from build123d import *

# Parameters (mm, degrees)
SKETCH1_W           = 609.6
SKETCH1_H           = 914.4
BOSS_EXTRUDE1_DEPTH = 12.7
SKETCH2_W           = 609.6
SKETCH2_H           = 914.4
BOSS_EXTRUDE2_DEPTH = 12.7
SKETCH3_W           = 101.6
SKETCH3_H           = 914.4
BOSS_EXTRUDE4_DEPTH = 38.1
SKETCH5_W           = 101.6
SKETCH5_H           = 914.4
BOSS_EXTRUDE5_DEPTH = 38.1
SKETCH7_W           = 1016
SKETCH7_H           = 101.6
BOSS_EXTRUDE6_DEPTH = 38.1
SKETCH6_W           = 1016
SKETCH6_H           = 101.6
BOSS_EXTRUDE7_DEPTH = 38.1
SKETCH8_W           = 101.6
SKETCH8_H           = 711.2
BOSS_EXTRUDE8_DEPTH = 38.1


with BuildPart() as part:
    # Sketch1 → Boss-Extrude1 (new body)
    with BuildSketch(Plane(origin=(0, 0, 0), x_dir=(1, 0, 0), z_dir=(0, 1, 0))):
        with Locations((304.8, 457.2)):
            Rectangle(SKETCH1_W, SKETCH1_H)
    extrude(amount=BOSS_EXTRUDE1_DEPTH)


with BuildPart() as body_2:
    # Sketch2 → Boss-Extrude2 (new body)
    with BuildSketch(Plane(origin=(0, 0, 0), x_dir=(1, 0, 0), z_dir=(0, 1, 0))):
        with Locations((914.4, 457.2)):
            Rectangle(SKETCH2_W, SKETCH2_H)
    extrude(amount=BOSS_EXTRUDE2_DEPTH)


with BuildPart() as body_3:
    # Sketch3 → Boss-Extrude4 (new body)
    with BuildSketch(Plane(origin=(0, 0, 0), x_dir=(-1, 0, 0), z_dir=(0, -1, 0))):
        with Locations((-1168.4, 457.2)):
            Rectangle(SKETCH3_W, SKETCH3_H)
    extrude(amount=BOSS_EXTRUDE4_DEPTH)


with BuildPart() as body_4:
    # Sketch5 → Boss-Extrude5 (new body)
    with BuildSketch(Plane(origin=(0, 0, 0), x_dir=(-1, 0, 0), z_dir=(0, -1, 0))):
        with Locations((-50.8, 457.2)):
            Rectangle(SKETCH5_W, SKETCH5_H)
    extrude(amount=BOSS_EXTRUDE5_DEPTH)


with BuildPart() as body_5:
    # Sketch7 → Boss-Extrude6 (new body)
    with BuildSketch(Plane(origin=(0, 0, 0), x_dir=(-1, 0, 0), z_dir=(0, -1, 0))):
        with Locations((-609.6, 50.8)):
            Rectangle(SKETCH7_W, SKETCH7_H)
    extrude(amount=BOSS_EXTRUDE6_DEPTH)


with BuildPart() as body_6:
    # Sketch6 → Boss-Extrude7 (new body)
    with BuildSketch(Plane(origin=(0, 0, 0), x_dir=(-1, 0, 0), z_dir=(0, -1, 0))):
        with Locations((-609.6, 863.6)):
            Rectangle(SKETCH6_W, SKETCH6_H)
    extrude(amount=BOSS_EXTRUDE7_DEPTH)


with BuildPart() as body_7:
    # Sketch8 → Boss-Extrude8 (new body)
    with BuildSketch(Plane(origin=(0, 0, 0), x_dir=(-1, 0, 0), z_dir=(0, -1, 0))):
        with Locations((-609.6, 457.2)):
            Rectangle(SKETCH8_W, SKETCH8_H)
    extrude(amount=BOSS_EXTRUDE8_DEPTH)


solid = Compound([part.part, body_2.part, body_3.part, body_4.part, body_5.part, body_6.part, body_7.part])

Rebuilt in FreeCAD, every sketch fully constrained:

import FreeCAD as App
import Part
import Sketcher
from FreeCAD import Vector
Q = App.Units.Quantity

doc = App.newDocument("Part")
body = doc.addObject("PartDesign::Body", "Body")

# Sketch on XZ plane
sketch1 = body.newObject("Sketcher::SketchObject", "Sketch")
sketch1.AttachmentSupport = (doc.getObject("XZ_Plane"), [""])
sketch1.MapMode = "FlatFace"
sketch1.addGeometry([
    Part.LineSegment(Vector(0, -914.4, 0), Vector(0, 0, 0)),
    Part.LineSegment(Vector(0, 0, 0), Vector(609.6, 0, 0)),
    Part.LineSegment(Vector(609.6, 0, 0), Vector(609.6, -914.4, 0)),
    Part.LineSegment(Vector(609.6, -914.4, 0), Vector(0, -914.4, 0)),
], False)
sketch1.addConstraint([
    Sketcher.Constraint("Coincident", 0, 2, 1, 1),
    Sketcher.Constraint("Coincident", 1, 2, 2, 1),
    Sketcher.Constraint("Coincident", 2, 2, 3, 1),
    Sketcher.Constraint("Coincident", 3, 2, 0, 1),
    Sketcher.Constraint("Vertical", 0),
    Sketcher.Constraint("Horizontal", 1),
    Sketcher.Constraint("Vertical", 2),
    Sketcher.Constraint("Horizontal", 3),
    Sketcher.Constraint("Coincident", 0, 2, -1, 1),
    Sketcher.Constraint("DistanceX", 1, 1, 1, 2, Q("24 in")),
    Sketcher.Constraint("DistanceY", 0, 1, 0, 2, Q("36 in")),
])
pad1 = body.newObject("PartDesign::Pad", "Pad")
pad1.Profile = sketch1
pad1.Length = Q("0.5 in")
pad1.Reversed = True
body2 = doc.addObject("PartDesign::Body", "Body001")

# Sketch on XZ plane
sketch2 = body2.newObject("Sketcher::SketchObject", "Sketch001")
sketch2.AttachmentSupport = (doc.getObject("XZ_Plane001"), [""])
sketch2.MapMode = "FlatFace"
sketch2.addGeometry([
    Part.LineSegment(Vector(609.6, -914.4, 0), Vector(609.6, 0, 0)),
    Part.LineSegment(Vector(609.6, 0, 0), Vector(1219.2, 0, 0)),
    Part.LineSegment(Vector(1219.2, 0, 0), Vector(1219.2, -914.4, 0)),
    Part.LineSegment(Vector(1219.2, -914.4, 0), Vector(609.6, -914.4, 0)),
], False)
sketch2.addConstraint([
    Sketcher.Constraint("Coincident", 0, 2, 1, 1),
    Sketcher.Constraint("Coincident", 1, 2, 2, 1),
    Sketcher.Constraint("Coincident", 2, 2, 3, 1),
    Sketcher.Constraint("Coincident", 3, 2, 0, 1),
    Sketcher.Constraint("Vertical", 0),
    Sketcher.Constraint("Horizontal", 1),
    Sketcher.Constraint("Vertical", 2),
    Sketcher.Constraint("Horizontal", 3),
    Sketcher.Constraint("PointOnObject", 0, 2, -1),
    Sketcher.Constraint("DistanceX", 1, 1, 1, 2, Q("24 in")),
    Sketcher.Constraint("DistanceY", 0, 1, 0, 2, Q("36 in")),
    Sketcher.Constraint("DistanceX", -1, 1, 0, 2, Q("24 in")),
])
pad2 = body2.newObject("PartDesign::Pad", "Pad001")
pad2.Profile = sketch2
pad2.Length = Q("0.5 in")
pad2.Reversed = True
body3 = doc.addObject("PartDesign::Body", "Body002")

# Sketch on XZ plane
sketch3 = body3.newObject("Sketcher::SketchObject", "Sketch002")
sketch3.AttachmentSupport = (doc.getObject("XZ_Plane002"), [""])
sketch3.MapMode = "FlatFace"
sketch3.addGeometry([
    Part.LineSegment(Vector(1219.2, -914.4, 0), Vector(1219.2, 0, 0)),
    Part.LineSegment(Vector(1219.2, 0, 0), Vector(1117.6, 0, 0)),
    Part.LineSegment(Vector(1117.6, 0, 0), Vector(1117.6, -914.4, 0)),
    Part.LineSegment(Vector(1117.6, -914.4, 0), Vector(1219.2, -914.4, 0)),
], False)
sketch3.addConstraint([
    Sketcher.Constraint("Coincident", 0, 2, 1, 1),
    Sketcher.Constraint("Coincident", 1, 2, 2, 1),
    Sketcher.Constraint("Coincident", 2, 2, 3, 1),
    Sketcher.Constraint("Coincident", 3, 2, 0, 1),
    Sketcher.Constraint("Vertical", 0),
    Sketcher.Constraint("Horizontal", 1),
    Sketcher.Constraint("Vertical", 2),
    Sketcher.Constraint("Horizontal", 3),
    Sketcher.Constraint("PointOnObject", 0, 2, -1),
    Sketcher.Constraint("DistanceX", 1, 2, 1, 1, Q("4 in")),
    Sketcher.Constraint("DistanceY", 0, 1, 0, 2, Q("36 in")),
    Sketcher.Constraint("DistanceX", -1, 1, 0, 2, Q("48 in")),
])
pad3 = body3.newObject("PartDesign::Pad", "Pad002")
pad3.Profile = sketch3
pad3.Length = Q("1.5 in")
body4 = doc.addObject("PartDesign::Body", "Body003")

# Sketch on XZ plane
sketch4 = body4.newObject("Sketcher::SketchObject", "Sketch003")
sketch4.AttachmentSupport = (doc.getObject("XZ_Plane003"), [""])
sketch4.MapMode = "FlatFace"
sketch4.addGeometry([
    Part.LineSegment(Vector(101.6, -914.4, 0), Vector(101.6, 0, 0)),
    Part.LineSegment(Vector(101.6, 0, 0), Vector(0, 0, 0)),
    Part.LineSegment(Vector(0, 0, 0), Vector(0, -914.4, 0)),
    Part.LineSegment(Vector(0, -914.4, 0), Vector(101.6, -914.4, 0)),
], False)
sketch4.addConstraint([
    Sketcher.Constraint("Coincident", 0, 2, 1, 1),
    Sketcher.Constraint("Coincident", 1, 2, 2, 1),
    Sketcher.Constraint("Coincident", 2, 2, 3, 1),
    Sketcher.Constraint("Coincident", 3, 2, 0, 1),
    Sketcher.Constraint("Vertical", 0),
    Sketcher.Constraint("Horizontal", 1),
    Sketcher.Constraint("Vertical", 2),
    Sketcher.Constraint("Horizontal", 3),
    Sketcher.Constraint("Coincident", 1, 2, -1, 1),
    Sketcher.Constraint("DistanceX", 1, 2, 1, 1, Q("4 in")),
    Sketcher.Constraint("DistanceY", 0, 1, 0, 2, Q("36 in")),
])
pad4 = body4.newObject("PartDesign::Pad", "Pad003")
pad4.Profile = sketch4
pad4.Length = Q("1.5 in")
body5 = doc.addObject("PartDesign::Body", "Body004")

# Sketch on XZ plane
sketch5 = body5.newObject("Sketcher::SketchObject", "Sketch004")
sketch5.AttachmentSupport = (doc.getObject("XZ_Plane004"), [""])
sketch5.MapMode = "FlatFace"
sketch5.addGeometry([
    Part.LineSegment(Vector(1117.6, -101.6, 0), Vector(1117.6, 0, 0)),
    Part.LineSegment(Vector(1117.6, 0, 0), Vector(101.6, 0, 0)),
    Part.LineSegment(Vector(101.6, 0, 0), Vector(101.6, -101.6, 0)),
    Part.LineSegment(Vector(101.6, -101.6, 0), Vector(1117.6, -101.6, 0)),
], False)
sketch5.addConstraint([
    Sketcher.Constraint("Coincident", 0, 2, 1, 1),
    Sketcher.Constraint("Coincident", 1, 2, 2, 1),
    Sketcher.Constraint("Coincident", 2, 2, 3, 1),
    Sketcher.Constraint("Coincident", 3, 2, 0, 1),
    Sketcher.Constraint("Vertical", 0),
    Sketcher.Constraint("Horizontal", 1),
    Sketcher.Constraint("Vertical", 2),
    Sketcher.Constraint("Horizontal", 3),
    Sketcher.Constraint("PointOnObject", 0, 2, -1),
    Sketcher.Constraint("DistanceX", 1, 2, 1, 1, Q("40 in")),
    Sketcher.Constraint("DistanceY", 0, 1, 0, 2, Q("4 in")),
    Sketcher.Constraint("DistanceX", -1, 1, 0, 2, Q("44 in")),
])
pad5 = body5.newObject("PartDesign::Pad", "Pad004")
pad5.Profile = sketch5
pad5.Length = Q("1.5 in")
body6 = doc.addObject("PartDesign::Body", "Body005")

# Sketch on XZ plane
sketch6 = body6.newObject("Sketcher::SketchObject", "Sketch005")
sketch6.AttachmentSupport = (doc.getObject("XZ_Plane005"), [""])
sketch6.MapMode = "FlatFace"
sketch6.addGeometry([
    Part.LineSegment(Vector(1117.6, -914.4, 0), Vector(1117.6, -812.8, 0)),
    Part.LineSegment(Vector(1117.6, -812.8, 0), Vector(101.6, -812.8, 0)),
    Part.LineSegment(Vector(101.6, -812.8, 0), Vector(101.6, -914.4, 0)),
    Part.LineSegment(Vector(101.6, -914.4, 0), Vector(1117.6, -914.4, 0)),
], False)
sketch6.addConstraint([
    Sketcher.Constraint("Coincident", 0, 2, 1, 1),
    Sketcher.Constraint("Coincident", 1, 2, 2, 1),
    Sketcher.Constraint("Coincident", 2, 2, 3, 1),
    Sketcher.Constraint("Coincident", 3, 2, 0, 1),
    Sketcher.Constraint("Vertical", 0),
    Sketcher.Constraint("Horizontal", 1),
    Sketcher.Constraint("Vertical", 2),
    Sketcher.Constraint("Horizontal", 3),
    Sketcher.Constraint("DistanceX", 1, 2, 1, 1, Q("40 in")),
    Sketcher.Constraint("DistanceY", 0, 1, 0, 2, Q("4 in")),
    Sketcher.Constraint("DistanceX", -1, 1, 0, 2, Q("44 in")),
    Sketcher.Constraint("DistanceY", 0, 2, -1, 1, Q("32 in")),
])
pad6 = body6.newObject("PartDesign::Pad", "Pad005")
pad6.Profile = sketch6
pad6.Length = Q("1.5 in")
body7 = doc.addObject("PartDesign::Body", "Body006")

# Sketch on XZ plane
sketch7 = body7.newObject("Sketcher::SketchObject", "Sketch006")
sketch7.AttachmentSupport = (doc.getObject("XZ_Plane006"), [""])
sketch7.MapMode = "FlatFace"
sketch7.addGeometry([
    Part.LineSegment(Vector(660.4, -812.8, 0), Vector(660.4, -101.6, 0)),
    Part.LineSegment(Vector(660.4, -101.6, 0), Vector(558.8, -101.6, 0)),
    Part.LineSegment(Vector(558.8, -101.6, 0), Vector(558.8, -812.8, 0)),
    Part.LineSegment(Vector(558.8, -812.8, 0), Vector(660.4, -812.8, 0)),
], False)
sketch7.addConstraint([
    Sketcher.Constraint("Coincident", 0, 2, 1, 1),
    Sketcher.Constraint("Coincident", 1, 2, 2, 1),
    Sketcher.Constraint("Coincident", 2, 2, 3, 1),
    Sketcher.Constraint("Coincident", 3, 2, 0, 1),
    Sketcher.Constraint("Vertical", 0),
    Sketcher.Constraint("Horizontal", 1),
    Sketcher.Constraint("Vertical", 2),
    Sketcher.Constraint("Horizontal", 3),
    Sketcher.Constraint("DistanceX", 1, 2, 1, 1, Q("4 in")),
    Sketcher.Constraint("DistanceY", 0, 1, 0, 2, Q("28 in")),
    Sketcher.Constraint("DistanceX", -1, 1, 0, 2, Q("26 in")),
    Sketcher.Constraint("DistanceY", 0, 2, -1, 1, Q("4 in")),
])
pad7 = body7.newObject("PartDesign::Pad", "Pad006")
pad7.Profile = sketch7
pad7.Length = Q("1.5 in")

doc.recompute()
